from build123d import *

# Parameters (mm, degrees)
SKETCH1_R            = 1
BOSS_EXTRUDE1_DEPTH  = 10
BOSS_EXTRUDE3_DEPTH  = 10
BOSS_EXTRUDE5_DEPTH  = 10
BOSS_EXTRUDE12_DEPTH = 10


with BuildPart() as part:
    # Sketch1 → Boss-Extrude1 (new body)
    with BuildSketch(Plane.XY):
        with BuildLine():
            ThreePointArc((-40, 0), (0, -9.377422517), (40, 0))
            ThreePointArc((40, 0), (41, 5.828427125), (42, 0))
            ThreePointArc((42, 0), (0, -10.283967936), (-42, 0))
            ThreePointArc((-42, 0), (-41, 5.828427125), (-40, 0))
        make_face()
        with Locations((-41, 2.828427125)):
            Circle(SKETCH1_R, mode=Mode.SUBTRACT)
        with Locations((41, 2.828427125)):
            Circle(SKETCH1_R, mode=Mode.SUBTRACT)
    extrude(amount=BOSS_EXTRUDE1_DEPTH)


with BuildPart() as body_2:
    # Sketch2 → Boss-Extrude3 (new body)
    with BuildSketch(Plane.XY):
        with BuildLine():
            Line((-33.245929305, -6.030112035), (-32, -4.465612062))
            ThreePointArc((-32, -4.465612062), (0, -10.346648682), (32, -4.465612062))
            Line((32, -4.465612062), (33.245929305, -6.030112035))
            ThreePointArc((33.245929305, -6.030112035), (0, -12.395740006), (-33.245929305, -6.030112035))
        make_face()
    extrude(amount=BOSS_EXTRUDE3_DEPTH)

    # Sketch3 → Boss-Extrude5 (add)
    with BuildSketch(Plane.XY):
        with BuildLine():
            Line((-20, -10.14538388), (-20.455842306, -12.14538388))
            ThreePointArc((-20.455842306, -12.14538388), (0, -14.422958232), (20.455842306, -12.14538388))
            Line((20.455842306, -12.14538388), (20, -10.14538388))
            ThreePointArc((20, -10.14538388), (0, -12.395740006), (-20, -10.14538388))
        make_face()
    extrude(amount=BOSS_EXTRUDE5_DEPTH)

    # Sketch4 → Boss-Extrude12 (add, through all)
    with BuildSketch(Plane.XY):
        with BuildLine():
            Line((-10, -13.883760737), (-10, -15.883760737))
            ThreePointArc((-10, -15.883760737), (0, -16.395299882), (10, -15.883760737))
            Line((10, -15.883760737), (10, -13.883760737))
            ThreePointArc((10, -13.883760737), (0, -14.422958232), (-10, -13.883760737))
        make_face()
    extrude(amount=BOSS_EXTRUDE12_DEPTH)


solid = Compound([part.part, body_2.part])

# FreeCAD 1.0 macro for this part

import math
import FreeCAD as App
import Part
import Sketcher

doc = App.newDocument("Part")
body = doc.addObject("PartDesign::Body", "Body")

sketch1 = doc.addObject("Sketcher::SketchObject", "Sketch")
body.addObject(sketch1)
sketch1.AttachmentSupport = (doc.XY_Plane, [""])
sketch1.MapMode = "FlatFace"
sketch1.addGeometry([
    Part.ArcOfCircle(Part.Circle(App.Vector(0, 80.6, 0), App.Vector(0, 0, 1), 90), math.radians(-116), math.radians(-64)),
    Part.ArcOfCircle(Part.Circle(App.Vector(-41, 2.8, 0), App.Vector(0, 0, 1), 3), math.radians(-71), math.radians(251)),
    Part.ArcOfCircle(Part.Circle(App.Vector(0, 80.6, 0), App.Vector(0, 0, 1), 90.9), math.radians(-118), math.radians(-62)),
    Part.ArcOfCircle(Part.Circle(App.Vector(41, 2.8, 0), App.Vector(0, 0, 1), 3), math.radians(-71), math.radians(251)),
    Part.Circle(App.Vector(41, 2.8, 0), App.Vector(0, 0, 1), 1),
    Part.Circle(App.Vector(-41, 2.8, 0), App.Vector(0, 0, 1), 1),
], False)
sketch1.addConstraint([
    Sketcher.Constraint("Coincident", 0, 1, 1, 1),
    Sketcher.Constraint("Coincident", 1, 2, 2, 1),
    Sketcher.Constraint("Coincident", 2, 2, 3, 1),
    Sketcher.Constraint("Coincident", 3, 2, 0, 2),
    Sketcher.Constraint("Coincident", 2, 3, 0, 3),
    Sketcher.Constraint("Coincident", 4, 3, 3, 3),
    Sketcher.Constraint("Coincident", 5, 3, 1, 3),
    Sketcher.Constraint("Equal", 1, 3),
    Sketcher.Constraint("Equal", 4, 5),
    Sketcher.Constraint("Symmetric", 1, 2, 2, 2, -1, 1),
    Sketcher.Constraint("Symmetric", 0, 1, 3, 2, -1, 1),
    Sketcher.Constraint("PointOnObject", 0, 3, -2),
    Sketcher.Constraint("Diameter", 4, 2.0),
    Sketcher.Constraint("Radius", 0, 90.0),
    Sketcher.Constraint("Radius", 1, 3.0),
    Sketcher.Constraint("DistanceX", 1, 3, -1, 1, 41.0),
    Sketcher.Constraint("DistanceX", 0, 1, -1, 1, 40.0),
])
pad1 = doc.addObject("PartDesign::Pad", "Pad")
body.addObject(pad1)
pad1.Profile = sketch1
pad1.Length = 10
body2 = doc.addObject("PartDesign::Body", "Body001")

sketch2 = doc.addObject("Sketcher::SketchObject", "Sketch001")
body2.addObject(sketch2)
sketch2.AttachmentSupport = (doc.getObject("XY_Plane001"), [""])
sketch2.MapMode = "FlatFace"
sketch2.addGeometry([
    Part.LineSegment(App.Vector(-32, -4.5, 0), App.Vector(-33.2, -6, 0)),
    Part.ArcOfCircle(Part.Circle(App.Vector(0, 77.6, 0), App.Vector(0, 0, 1), 90), math.radians(-112), math.radians(-68)),
    Part.LineSegment(App.Vector(33.2, -6, 0), App.Vector(32, -4.5, 0)),
    Part.ArcOfCircle(Part.Circle(App.Vector(0, 79.7, 0), App.Vector(0, 0, 1), 90), math.radians(-111), math.radians(-69)),
], False)
sketch2.addConstraint([
    Sketcher.Constraint("Coincident", 0, 2, 1, 1),
    Sketcher.Constraint("Coincident", 1, 2, 2, 1),
    Sketcher.Constraint("Coincident", 2, 2, 3, 2),
    Sketcher.Constraint("Coincident", 3, 1, 0, 1),
    Sketcher.Constraint("Equal", 1, 3),
    Sketcher.Constraint("Symmetric", 0, 2, 1, 2, -2),
    Sketcher.Constraint("Symmetric", 2, 2, 3, 1, -2),
    Sketcher.Constraint("Radius", 1, 90.0),
    Sketcher.Constraint("Distance", 0, 2.0),
    Sketcher.Constraint("DistanceX", -1, 1, 2, 2, 32.0),
    Sketcher.Constraint("DistanceY", 1, 2, 2, 2, 1.5645),
    Sketcher.Constraint("DistanceY", -1, 1, 1, 3, 77.60426),
])
pad2 = doc.addObject("PartDesign::Pad", "Pad001")
body2.addObject(pad2)
pad2.Profile = sketch2
pad2.Length = 10

sketch3 = doc.addObject("Sketcher::SketchObject", "Sketch002")
body2.addObject(sketch3)
sketch3.AttachmentSupport = (doc.getObject("XY_Plane001"), [""])
sketch3.MapMode = "FlatFace"
sketch3.addGeometry([
    Part.LineSegment(App.Vector(-20, -10.1, 0), App.Vector(-20.5, -12.1, 0)),
    Part.ArcOfCircle(Part.Circle(App.Vector(0, 78.6, 0), App.Vector(0, 0, 1), 93), math.radians(-103), math.radians(-77)),
    Part.LineSegment(App.Vector(20.5, -12.1, 0), App.Vector(20, -10.1, 0)),
    Part.ArcOfCircle(Part.Circle(App.Vector(0, 77.6, 0), App.Vector(0, 0, 1), 90), math.radians(-103), math.radians(-77)),
], False)
sketch3.addConstraint([
    Sketcher.Constraint("Coincident", 0, 2, 1, 1),
    Sketcher.Constraint("Coincident", 1, 2, 2, 1),
    Sketcher.Constraint("Coincident", 2, 2, 3, 2),
    Sketcher.Constraint("Coincident", 3, 1, 0, 1),
    Sketcher.Constraint("Symmetric", 0, 2, 1, 2, -2),
    Sketcher.Constraint("Symmetric", 2, 2, 3, 1, -2),
    Sketcher.Constraint("Radius", 1, 93.0),
    Sketcher.Constraint("Radius", 3, 90.0),
    Sketcher.Constraint("DistanceX", -1, 1, 2, 2, 20.0),
    Sketcher.Constraint("DistanceY", 1, 2, 2, 2, 2.0),
    Sketcher.Constraint("Distance", 0, 2.05129),
    Sketcher.Constraint("DistanceY", -1, 1, 1, 3, 78.577042),
])
pad3 = doc.addObject("PartDesign::Pad", "Pad002")
body2.addObject(pad3)
pad3.Profile = sketch3
pad3.Length = 10

sketch4 = doc.addObject("Sketcher::SketchObject", "Sketch003")
body2.addObject(sketch4)
sketch4.AttachmentSupport = (doc.getObject("XY_Plane001"), [""])
sketch4.MapMode = "FlatFace"
sketch4.addGeometry([
    Part.LineSegment(App.Vector(-10, -13.9, 0), App.Vector(-10, -15.9, 0)),
    Part.ArcOfCircle(Part.Circle(App.Vector(0, 81.6, 0), App.Vector(0, 0, 1), 98), math.radians(-95.86), math.radians(-84.14)),
    Part.LineSegment(App.Vector(10, -15.9, 0), App.Vector(10, -13.9, 0)),
    Part.ArcOfCircle(Part.Circle(App.Vector(0, 78.6, 0), App.Vector(0, 0, 1), 93), math.radians(-96.17), math.radians(-83.83)),
], False)
sketch4.addConstraint([
    Sketcher.Constraint("Coincident", 0, 2, 1, 1),
    Sketcher.Constraint("Coincident", 1, 2, 2, 1),
    Sketcher.Constraint("Coincident", 2, 2, 3, 2),
    Sketcher.Constraint("Coincident", 3, 1, 0, 1),
    Sketcher.Constraint("Vertical", 0),
    Sketcher.Constraint("Vertical", 2),
    Sketcher.Constraint("Symmetric", 0, 2, 1, 2, -2),
    Sketcher.Constraint("PointOnObject", 3, 3, -2),
    Sketcher.Constraint("Radius", 1, 98.0),
    Sketcher.Constraint("Radius", 3, 93.0),
    Sketcher.Constraint("DistanceY", 0, 2, 0, 1, 2.0),
    Sketcher.Constraint("DistanceX", 0, 2, -1, 1, 10.0),
    Sketcher.Constraint("DistanceY", -1, 1, 1, 3, 81.6047),
])
pad4 = doc.addObject("PartDesign::Pad", "Pad003")
body2.addObject(pad4)
pad4.Profile = sketch4
pad4.Length = 10

doc.recompute()
